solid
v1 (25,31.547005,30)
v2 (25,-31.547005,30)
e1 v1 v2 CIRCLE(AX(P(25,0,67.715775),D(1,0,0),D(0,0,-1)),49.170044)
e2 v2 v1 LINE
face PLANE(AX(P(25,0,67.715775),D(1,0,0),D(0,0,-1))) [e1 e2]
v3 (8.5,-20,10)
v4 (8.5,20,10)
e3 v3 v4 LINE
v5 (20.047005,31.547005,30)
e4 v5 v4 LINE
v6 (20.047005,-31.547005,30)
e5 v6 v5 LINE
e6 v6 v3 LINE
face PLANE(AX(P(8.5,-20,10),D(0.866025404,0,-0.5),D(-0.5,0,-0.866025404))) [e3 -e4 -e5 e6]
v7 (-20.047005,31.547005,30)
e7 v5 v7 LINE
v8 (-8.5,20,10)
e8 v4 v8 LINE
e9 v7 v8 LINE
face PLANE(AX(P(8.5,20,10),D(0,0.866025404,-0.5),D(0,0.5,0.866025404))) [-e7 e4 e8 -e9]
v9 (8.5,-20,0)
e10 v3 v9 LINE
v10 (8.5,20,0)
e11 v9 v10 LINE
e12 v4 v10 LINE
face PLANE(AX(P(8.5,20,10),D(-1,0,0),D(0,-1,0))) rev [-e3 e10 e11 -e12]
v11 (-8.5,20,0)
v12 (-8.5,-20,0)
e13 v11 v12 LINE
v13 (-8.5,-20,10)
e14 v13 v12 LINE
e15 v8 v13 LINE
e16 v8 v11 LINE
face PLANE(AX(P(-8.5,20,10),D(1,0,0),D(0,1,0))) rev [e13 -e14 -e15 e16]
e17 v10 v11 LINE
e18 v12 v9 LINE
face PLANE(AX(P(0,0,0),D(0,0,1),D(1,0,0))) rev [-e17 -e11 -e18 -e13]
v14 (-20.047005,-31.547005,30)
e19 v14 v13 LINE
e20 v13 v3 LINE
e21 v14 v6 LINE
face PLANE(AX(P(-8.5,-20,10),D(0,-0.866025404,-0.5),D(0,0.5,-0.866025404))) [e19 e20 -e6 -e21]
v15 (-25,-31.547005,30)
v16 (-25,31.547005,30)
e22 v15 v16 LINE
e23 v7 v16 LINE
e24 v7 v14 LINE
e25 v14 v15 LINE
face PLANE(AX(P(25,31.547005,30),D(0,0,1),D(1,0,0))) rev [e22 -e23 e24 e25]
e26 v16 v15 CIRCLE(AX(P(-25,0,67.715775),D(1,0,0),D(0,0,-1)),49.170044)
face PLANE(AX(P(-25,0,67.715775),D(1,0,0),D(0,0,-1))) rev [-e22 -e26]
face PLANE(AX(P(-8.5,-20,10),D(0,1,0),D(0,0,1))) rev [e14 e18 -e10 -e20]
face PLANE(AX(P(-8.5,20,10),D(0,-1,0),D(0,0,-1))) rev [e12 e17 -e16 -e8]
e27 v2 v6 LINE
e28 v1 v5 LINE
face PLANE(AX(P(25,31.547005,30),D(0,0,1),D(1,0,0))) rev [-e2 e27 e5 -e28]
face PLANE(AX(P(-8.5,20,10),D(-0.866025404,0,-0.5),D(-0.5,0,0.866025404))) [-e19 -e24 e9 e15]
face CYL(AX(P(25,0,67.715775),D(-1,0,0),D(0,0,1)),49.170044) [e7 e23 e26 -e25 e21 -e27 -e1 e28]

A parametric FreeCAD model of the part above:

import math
import FreeCAD as App
import Part
import Sketcher

V = App.Vector
Q = App.Units.Quantity


def add_polygon(sketch, points):
    """Adds a closed chain of lines whose ends are joined by coincident constraints."""
    first, n = sketch.GeometryCount, len(points)
    for a, b in zip(points, points[1:] + points[:1]):
        sketch.addGeometry(Part.LineSegment(App.Vector(*a, 0), App.Vector(*b, 0)), False)
    for i in range(n):
        sketch.addConstraint(Sketcher.Constraint("Coincident", first + i, 2, first + (i + 1) % n, 1))

doc = App.newDocument("Part")
body = doc.addObject("PartDesign::Body", "Body")

# Sketch on XY plane
sketch1 = doc.addObject("Sketcher::SketchObject", "Sketch")
body.addObject(sketch1)
sketch1.AttachmentSupport = (doc.XY_Plane, [""])
sketch1.MapMode = "FlatFace"
add_polygon(sketch1, [(-8, 20), (-8, -20), (8, -20), (8, 20)])  # lines 0-3
sketch1.addConstraint([
    Sketcher.Constraint("Vertical", 0),
    Sketcher.Constraint("Horizontal", 1),
    Sketcher.Constraint("Vertical", 2),
    Sketcher.Constraint("Horizontal", 3),
    Sketcher.Constraint("Symmetric", 0, 2, 2, 2, -1, 1),
    Sketcher.Constraint("DistanceX", 1, 1, 1, 2, Q("17 mm")),
    Sketcher.Constraint("DistanceY", 0, 2, 0, 1, Q("40 mm")),
])
pad1 = doc.addObject("PartDesign::Pad", "Pad")
body.addObject(pad1)
pad1.Profile = sketch1
pad1.Length = 10

# Sketch on XY plane
sketch2 = doc.addObject("Sketcher::SketchObject", "Sketch001")
body.addObject(sketch2)
sketch2.AttachmentSupport = (doc.XY_Plane, [""])
sketch2.MapMode = "FlatFace"
sketch2.AttachmentOffset = App.Placement(V(0, 0, 10), App.Rotation())
add_polygon(sketch2, [(-8, 20), (-8, -20), (8, -20), (8, 20)])  # lines 0-3
sketch2.addConstraint([
    Sketcher.Constraint("Vertical", 0),
    Sketcher.Constraint("Horizontal", 1),
    Sketcher.Constraint("Vertical", 2),
    Sketcher.Constraint("Horizontal", 3),
    Sketcher.Constraint("Symmetric", 0, 2, 2, 2, -1, 1),
    Sketcher.Constraint("DistanceX", 1, 1, 1, 2, Q("17 mm")),
    Sketcher.Constraint("DistanceY", 0, 2, 0, 1, Q("40 mm")),
])
pad2 = doc.addObject("PartDesign::Pad", "Pad001")
body.addObject(pad2)
pad2.Profile = sketch2
pad2.Length = 20
pad2.TaperAngle = 30

# Sketch on YZ plane
sketch3 = doc.addObject("Sketcher::SketchObject", "Sketch002")
body.addObject(sketch3)
sketch3.AttachmentSupport = (doc.YZ_Plane, [""])
sketch3.MapMode = "FlatFace"
sketch3.addGeometry([
    Part.LineSegment(V(-32, 30, 0), V(32, 30, 0)),
    Part.ArcOfCircle(Part.Circle(V(0, 68, 0), V(0, 0, 1), 49), math.radians(-50), math.radians(230)),
], False)
sketch3.addConstraint([
    Sketcher.Constraint("Coincident", 0, 1, 1, 2),
    Sketcher.Constraint("Coincident", 1, 1, 0, 2),
    Sketcher.Constraint("Horizontal", 0),
    Sketcher.Constraint("PointOnObject", 1, 3, -2),
    Sketcher.Constraint("DistanceY", -1, 1, 0, 1, Q("30 mm")),
    Sketcher.Constraint("Radius", 1, Q("49.170044 mm")),
    Sketcher.Constraint("DistanceX", 0, 1, 0, 2, Q("63.094011 mm")),
])
pad3 = doc.addObject("PartDesign::Pad", "Pad002")
body.addObject(pad3)
pad3.Profile = sketch3
pad3.Length = 50
pad3.Midplane = True

doc.recompute()
